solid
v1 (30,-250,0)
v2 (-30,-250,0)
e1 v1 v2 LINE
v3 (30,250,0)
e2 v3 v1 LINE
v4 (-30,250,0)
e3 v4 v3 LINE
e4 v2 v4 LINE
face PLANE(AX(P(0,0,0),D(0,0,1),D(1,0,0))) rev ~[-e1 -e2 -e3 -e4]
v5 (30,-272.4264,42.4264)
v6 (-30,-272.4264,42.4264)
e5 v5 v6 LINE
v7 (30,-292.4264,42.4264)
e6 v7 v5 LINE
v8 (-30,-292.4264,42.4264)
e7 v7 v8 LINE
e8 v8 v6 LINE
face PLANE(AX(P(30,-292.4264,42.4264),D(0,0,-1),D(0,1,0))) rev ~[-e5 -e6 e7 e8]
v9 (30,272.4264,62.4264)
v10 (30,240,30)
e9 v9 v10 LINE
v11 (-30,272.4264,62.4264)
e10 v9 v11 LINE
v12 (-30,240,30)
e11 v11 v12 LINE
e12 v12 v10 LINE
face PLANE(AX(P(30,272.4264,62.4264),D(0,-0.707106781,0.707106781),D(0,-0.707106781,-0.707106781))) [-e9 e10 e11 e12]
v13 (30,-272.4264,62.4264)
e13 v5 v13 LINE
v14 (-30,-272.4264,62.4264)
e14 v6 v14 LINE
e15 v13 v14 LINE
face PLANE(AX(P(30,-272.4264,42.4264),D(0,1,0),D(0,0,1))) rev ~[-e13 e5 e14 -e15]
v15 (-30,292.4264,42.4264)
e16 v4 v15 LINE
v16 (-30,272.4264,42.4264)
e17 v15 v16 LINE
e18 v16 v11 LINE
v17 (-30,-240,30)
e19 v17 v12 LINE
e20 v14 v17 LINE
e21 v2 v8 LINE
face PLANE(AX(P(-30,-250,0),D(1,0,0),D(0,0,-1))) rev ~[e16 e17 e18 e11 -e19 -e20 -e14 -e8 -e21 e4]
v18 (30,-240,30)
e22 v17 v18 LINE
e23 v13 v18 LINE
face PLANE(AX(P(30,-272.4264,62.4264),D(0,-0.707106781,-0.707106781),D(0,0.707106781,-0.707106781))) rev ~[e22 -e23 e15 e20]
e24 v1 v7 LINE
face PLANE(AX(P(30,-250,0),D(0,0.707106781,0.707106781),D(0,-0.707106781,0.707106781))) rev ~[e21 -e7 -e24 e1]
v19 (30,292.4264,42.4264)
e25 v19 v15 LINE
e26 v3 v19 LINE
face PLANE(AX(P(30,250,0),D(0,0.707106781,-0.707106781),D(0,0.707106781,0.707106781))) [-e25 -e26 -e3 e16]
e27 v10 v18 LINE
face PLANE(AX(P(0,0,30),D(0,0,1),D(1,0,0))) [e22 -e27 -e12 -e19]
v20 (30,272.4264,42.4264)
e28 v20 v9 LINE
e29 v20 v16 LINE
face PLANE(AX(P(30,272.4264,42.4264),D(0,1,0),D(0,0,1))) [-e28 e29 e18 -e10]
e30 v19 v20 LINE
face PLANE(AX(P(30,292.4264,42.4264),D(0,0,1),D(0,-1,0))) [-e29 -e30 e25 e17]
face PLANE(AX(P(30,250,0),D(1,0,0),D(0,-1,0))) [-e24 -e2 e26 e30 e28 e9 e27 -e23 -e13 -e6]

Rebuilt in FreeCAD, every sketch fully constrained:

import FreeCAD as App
import Part
import Sketcher

V = App.Vector
Q = App.Units.Quantity


def add_polygon(sketch, points):
    """Adds a closed chain of lines whose ends are joined by coincident constraints."""
    first, n = sketch.GeometryCount, len(points)
    for a, b in zip(points, points[1:] + points[:1]):
        sketch.addGeometry(Part.LineSegment(App.Vector(*a, 0), App.Vector(*b, 0)), False)
    for i in range(n):
        sketch.addConstraint(Sketcher.Constraint("Coincident", first + i, 2, first + (i + 1) % n, 1))

doc = App.newDocument("Part")
params = doc.addObject("Spreadsheet::Sheet", "Params")
for row, (alias, value) in enumerate([
    ("sketch1_width", "60 mm"),
    ("sketch1_height", "500 mm"),
    ("pad1_length", "30 mm"),
    ("sketch2_width", "20 mm"),
    ("sketch2_length", "60 mm"),
    ("pad2_length", "60 mm"),
], start=1):
    params.set(f"A{row}", alias)
    params.set(f"B{row}", "=" + value)
    params.setAlias(f"B{row}", alias)

body = doc.addObject("PartDesign::Body", "Body")

sketch1 = doc.addObject("Sketcher::SketchObject", "Sketch")
body.addObject(sketch1)
sketch1.AttachmentSupport = (doc.XY_Plane, [""])
sketch1.MapMode = "FlatFace"
add_polygon(sketch1, [(-30, -250), (30, -250), (30, 250), (-30, 250)])
sketch1.addConstraint([
    Sketcher.Constraint("Horizontal", 0),
    Sketcher.Constraint("Vertical", 1),
    Sketcher.Constraint("Horizontal", 2),
    Sketcher.Constraint("Vertical", 3),
    Sketcher.Constraint("Symmetric", 0, 2, 2, 2, -1, 1),
    Sketcher.Constraint("DistanceX", 0, 1, 0, 2, Q("60 mm")),
    Sketcher.Constraint("DistanceY", 1, 1, 1, 2, Q("500 mm")),
])
sketch1.setExpression("Constraints[9]", "Params.sketch1_width")
sketch1.setExpression("Constraints[10]", "Params.sketch1_height")
pad1 = doc.addObject("PartDesign::Pad", "Pad")
body.addObject(pad1)
pad1.Profile = sketch1
pad1.setExpression("Length", "Params.pad1_length")

sketch2 = doc.addObject("Sketcher::SketchObject", "Sketch001")
body.addObject(sketch2)
sketch2.AttachmentSupport = (doc.YZ_Plane, [""])
sketch2.MapMode = "FlatFace"
sketch2.AttachmentOffset = App.Placement(V(0, 0, 30), App.Rotation())
add_polygon(sketch2, [(-292.4264, 42.4264), (-250, 0), (-233.4773, 23.4773), (-272.4264, 62.4264), (-272.4264, 42.4264)])
add_polygon(sketch2, [(226.5227, 16.5227), (250, 0), (292.4264, 42.4264), (272.4264, 42.4264), (272.4264, 62.4264)])
sketch2.addConstraint([
    Sketcher.Constraint("Vertical", 3),
    Sketcher.Constraint("Horizontal", 4),
    Sketcher.Constraint("Horizontal", 7),
    Sketcher.Constraint("Vertical", 8),
    Sketcher.Constraint("Symmetric", 0, 2, 5, 2, -1, 1),
    Sketcher.Constraint("Symmetric", 4, 2, 6, 2, -2),
    Sketcher.Constraint("Symmetric", 2, 2, 8, 2, -2),
    Sketcher.Constraint("PointOnObject", 0, 2, -1),
    Sketcher.Constraint("Parallel", 0, 2),
    Sketcher.Constraint("Perpendicular", 1, 5),
    Sketcher.Constraint("Perpendicular", 2, 6),
    Sketcher.Constraint("Parallel", 6, 9),
    Sketcher.Constraint("Equal", 7, 3),
    Sketcher.Constraint("DistanceX", 4, 2, 4, 1, Q("20 mm")),
    Sketcher.Constraint("Distance", 0, Q("60 mm")),
    Sketcher.Constraint("DistanceX", 0, 2, -1, 1, Q("250 mm")),
    Sketcher.Constraint("DistanceX", 2, 2, 1, 2, Q("38.949 mm")),
])
sketch2.setExpression("Constraints[23]", "Params.sketch2_width")
sketch2.setExpression("Constraints[24]", "Params.sketch2_length")
pad2 = doc.addObject("PartDesign::Pad", "Pad001")
body.addObject(pad2)
pad2.Profile = sketch2
pad2.setExpression("Length", "Params.pad2_length")
pad2.Reversed = True

doc.recompute()
